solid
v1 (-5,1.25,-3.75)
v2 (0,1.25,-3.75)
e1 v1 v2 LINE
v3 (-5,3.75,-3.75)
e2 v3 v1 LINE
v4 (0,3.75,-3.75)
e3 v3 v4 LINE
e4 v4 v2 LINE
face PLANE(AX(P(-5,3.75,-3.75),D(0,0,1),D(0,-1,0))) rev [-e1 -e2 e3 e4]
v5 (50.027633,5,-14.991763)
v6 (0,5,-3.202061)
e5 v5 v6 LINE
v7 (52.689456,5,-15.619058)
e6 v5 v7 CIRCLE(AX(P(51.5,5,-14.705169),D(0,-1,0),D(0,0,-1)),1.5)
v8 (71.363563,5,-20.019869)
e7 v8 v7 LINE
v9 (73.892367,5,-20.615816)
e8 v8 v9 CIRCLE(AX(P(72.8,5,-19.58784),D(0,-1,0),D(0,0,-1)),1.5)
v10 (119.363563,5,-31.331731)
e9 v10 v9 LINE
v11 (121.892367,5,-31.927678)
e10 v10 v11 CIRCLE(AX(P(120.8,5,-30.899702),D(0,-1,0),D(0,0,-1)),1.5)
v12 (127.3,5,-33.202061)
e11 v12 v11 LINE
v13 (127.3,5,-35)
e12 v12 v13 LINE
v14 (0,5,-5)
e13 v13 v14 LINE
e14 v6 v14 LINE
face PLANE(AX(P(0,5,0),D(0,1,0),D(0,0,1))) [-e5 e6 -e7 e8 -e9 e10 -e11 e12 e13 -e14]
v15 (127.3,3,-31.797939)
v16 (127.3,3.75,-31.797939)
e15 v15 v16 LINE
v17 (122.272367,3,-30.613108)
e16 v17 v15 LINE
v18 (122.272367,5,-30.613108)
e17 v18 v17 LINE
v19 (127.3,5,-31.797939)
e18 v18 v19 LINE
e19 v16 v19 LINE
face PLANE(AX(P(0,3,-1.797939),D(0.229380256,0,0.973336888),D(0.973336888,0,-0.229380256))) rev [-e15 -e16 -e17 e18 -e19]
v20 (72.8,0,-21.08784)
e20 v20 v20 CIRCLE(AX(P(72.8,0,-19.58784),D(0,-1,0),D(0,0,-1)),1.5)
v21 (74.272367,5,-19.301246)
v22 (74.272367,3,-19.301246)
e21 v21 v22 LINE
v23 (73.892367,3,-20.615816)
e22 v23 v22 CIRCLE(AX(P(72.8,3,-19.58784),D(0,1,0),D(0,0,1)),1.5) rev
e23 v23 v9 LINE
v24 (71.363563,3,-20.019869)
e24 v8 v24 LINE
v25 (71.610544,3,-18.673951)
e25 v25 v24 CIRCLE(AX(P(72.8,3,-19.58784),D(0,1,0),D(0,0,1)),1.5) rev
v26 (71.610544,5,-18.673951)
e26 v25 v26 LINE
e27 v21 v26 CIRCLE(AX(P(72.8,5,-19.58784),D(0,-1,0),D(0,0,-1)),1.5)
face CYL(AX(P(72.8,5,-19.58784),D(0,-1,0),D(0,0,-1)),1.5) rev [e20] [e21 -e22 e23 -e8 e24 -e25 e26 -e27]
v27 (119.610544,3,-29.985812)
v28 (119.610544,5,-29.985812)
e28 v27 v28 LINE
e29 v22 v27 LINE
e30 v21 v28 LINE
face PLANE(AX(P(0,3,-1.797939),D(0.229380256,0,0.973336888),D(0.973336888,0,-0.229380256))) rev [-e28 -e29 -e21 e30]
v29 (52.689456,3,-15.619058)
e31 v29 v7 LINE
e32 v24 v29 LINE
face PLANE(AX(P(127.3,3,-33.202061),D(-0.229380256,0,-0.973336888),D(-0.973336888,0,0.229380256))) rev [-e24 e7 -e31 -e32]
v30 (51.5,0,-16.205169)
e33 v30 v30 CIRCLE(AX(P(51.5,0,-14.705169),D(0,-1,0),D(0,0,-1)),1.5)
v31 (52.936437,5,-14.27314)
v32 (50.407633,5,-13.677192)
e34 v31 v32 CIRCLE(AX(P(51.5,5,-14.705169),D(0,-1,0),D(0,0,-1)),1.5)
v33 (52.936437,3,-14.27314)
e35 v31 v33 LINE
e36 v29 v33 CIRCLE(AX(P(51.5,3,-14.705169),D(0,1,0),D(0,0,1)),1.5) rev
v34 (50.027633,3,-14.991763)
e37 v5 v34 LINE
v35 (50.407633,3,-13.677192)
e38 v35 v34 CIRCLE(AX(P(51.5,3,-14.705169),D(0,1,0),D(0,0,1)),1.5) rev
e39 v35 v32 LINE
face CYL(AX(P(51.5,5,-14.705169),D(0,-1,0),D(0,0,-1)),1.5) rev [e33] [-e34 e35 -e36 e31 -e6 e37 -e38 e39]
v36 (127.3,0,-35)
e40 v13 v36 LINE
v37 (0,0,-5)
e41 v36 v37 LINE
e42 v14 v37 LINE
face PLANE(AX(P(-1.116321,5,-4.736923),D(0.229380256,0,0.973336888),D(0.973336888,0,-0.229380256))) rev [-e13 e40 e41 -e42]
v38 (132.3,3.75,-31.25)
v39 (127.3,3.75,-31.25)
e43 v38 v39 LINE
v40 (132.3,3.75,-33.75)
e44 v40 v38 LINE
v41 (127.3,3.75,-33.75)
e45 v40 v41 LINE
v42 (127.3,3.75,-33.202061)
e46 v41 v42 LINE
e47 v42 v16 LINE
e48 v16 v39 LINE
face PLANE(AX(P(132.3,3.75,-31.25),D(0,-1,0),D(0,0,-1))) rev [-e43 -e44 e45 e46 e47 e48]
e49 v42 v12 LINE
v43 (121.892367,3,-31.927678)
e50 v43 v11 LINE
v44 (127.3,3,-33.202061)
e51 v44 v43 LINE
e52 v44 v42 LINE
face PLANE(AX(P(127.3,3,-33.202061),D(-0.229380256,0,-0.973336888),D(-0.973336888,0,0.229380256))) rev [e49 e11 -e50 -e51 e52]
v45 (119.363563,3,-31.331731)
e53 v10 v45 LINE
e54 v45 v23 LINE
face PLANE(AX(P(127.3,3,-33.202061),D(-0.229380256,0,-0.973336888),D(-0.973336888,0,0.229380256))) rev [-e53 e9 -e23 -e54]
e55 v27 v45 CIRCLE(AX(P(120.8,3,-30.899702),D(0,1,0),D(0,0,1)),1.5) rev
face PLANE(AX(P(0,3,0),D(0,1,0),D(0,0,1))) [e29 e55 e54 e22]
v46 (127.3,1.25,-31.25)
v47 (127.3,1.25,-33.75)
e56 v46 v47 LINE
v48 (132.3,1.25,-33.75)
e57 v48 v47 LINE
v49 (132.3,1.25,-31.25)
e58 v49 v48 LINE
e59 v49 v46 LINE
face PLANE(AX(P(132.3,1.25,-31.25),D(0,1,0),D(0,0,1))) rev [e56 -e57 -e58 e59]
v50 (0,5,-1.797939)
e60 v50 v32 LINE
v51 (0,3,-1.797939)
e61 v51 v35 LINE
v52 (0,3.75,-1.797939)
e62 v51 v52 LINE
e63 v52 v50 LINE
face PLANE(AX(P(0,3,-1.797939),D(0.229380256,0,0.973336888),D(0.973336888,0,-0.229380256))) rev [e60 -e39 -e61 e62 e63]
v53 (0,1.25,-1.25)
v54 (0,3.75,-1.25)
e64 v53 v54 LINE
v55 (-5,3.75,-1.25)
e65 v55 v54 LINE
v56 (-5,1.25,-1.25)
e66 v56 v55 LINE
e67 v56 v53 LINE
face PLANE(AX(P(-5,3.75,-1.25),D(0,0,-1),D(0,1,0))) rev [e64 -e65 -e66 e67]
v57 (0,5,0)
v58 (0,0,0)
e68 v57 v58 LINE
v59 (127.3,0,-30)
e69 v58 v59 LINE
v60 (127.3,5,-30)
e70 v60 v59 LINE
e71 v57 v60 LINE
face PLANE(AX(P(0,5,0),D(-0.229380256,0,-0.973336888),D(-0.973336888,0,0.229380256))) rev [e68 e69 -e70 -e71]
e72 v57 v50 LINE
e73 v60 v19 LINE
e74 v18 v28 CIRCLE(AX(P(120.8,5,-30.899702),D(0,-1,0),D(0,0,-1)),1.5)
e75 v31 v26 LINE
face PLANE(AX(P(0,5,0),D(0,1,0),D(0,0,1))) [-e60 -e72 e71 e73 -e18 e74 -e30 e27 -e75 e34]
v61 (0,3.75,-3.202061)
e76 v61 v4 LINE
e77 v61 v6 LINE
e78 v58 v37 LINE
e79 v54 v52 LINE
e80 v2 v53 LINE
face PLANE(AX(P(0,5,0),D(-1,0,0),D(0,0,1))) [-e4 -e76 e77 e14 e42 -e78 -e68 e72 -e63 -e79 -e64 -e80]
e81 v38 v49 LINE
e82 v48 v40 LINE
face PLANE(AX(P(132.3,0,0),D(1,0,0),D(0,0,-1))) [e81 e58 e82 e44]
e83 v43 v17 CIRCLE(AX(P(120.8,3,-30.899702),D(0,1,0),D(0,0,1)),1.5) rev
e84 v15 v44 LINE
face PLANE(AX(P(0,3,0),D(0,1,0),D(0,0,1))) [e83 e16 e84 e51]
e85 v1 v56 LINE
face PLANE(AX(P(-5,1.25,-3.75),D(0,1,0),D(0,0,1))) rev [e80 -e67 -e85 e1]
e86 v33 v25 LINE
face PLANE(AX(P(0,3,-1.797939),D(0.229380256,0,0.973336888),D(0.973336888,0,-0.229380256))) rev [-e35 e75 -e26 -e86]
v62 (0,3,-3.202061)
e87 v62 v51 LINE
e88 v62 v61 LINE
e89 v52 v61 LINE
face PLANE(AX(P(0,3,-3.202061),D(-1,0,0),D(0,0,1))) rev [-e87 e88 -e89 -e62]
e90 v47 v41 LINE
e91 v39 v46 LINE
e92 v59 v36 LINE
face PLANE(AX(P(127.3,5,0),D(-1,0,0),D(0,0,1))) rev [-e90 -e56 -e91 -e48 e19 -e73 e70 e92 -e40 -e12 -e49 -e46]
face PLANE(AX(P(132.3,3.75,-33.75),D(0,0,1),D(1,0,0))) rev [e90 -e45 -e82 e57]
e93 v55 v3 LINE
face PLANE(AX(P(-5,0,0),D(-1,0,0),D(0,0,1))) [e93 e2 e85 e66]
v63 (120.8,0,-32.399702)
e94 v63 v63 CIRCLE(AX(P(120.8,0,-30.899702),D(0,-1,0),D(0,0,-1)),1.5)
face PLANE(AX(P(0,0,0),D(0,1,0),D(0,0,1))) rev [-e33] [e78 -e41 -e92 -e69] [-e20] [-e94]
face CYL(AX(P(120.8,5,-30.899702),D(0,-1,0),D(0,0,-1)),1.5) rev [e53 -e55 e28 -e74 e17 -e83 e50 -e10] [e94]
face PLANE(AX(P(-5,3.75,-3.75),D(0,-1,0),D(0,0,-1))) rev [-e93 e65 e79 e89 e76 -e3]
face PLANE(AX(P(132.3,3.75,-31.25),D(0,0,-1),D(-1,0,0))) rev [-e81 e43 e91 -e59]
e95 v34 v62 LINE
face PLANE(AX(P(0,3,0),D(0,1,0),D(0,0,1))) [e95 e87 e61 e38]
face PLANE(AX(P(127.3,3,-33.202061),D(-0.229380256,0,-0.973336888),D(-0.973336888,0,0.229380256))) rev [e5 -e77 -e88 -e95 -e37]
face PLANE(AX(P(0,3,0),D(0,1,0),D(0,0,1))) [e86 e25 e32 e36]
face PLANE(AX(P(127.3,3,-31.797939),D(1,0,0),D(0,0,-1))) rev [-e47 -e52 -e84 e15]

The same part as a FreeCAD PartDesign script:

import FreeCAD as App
import Part
import Sketcher

V = App.Vector


def add_polygon(sketch, points):
    """Adds a closed chain of lines whose ends are joined by coincident constraints."""
    first, n = sketch.GeometryCount, len(points)
    for a, b in zip(points, points[1:] + points[:1]):
        sketch.addGeometry(Part.LineSegment(App.Vector(*a, 0), App.Vector(*b, 0)), False)
    for i in range(n):
        sketch.addConstraint(Sketcher.Constraint("Coincident", first + i, 2, first + (i + 1) % n, 1))

doc = App.newDocument("Part")
body = doc.addObject("PartDesign::Body", "Body")

# Sketch on XZ plane
sketch1 = body.newObject("Sketcher::SketchObject", "Sketch")
sketch1.AttachmentSupport = (doc.getObject("XZ_Plane"), [""])
sketch1.MapMode = "FlatFace"
add_polygon(sketch1, [(0, -5), (0, 0), (127.3, -30), (127.3, -35)])  # lines 0-3
sketch1.addConstraint([
    Sketcher.Constraint("Vertical", 0),
    Sketcher.Constraint("Vertical", 2),
    Sketcher.Constraint("Coincident", 0, 2, -1, 1),
    Sketcher.Constraint("Parallel", 1, 3),
    Sketcher.Constraint("DistanceY", 0, 1, 0, 2, 5.0),
    Sketcher.Constraint("DistanceY", 1, 2, -1, 1, 30.0),
    Sketcher.Constraint("DistanceX", -1, 1, 1, 2, 127.3),
])
pad1 = body.newObject("PartDesign::Pad", "Pad")
pad1.Profile = sketch1
pad1.Length = 5
pad1.Reversed = True

# Sketch on YZ plane
sketch2 = body.newObject("Sketcher::SketchObject", "Sketch001")
sketch2.AttachmentSupport = (doc.getObject("YZ_Plane"), [""])
sketch2.MapMode = "FlatFace"
sketch2.AttachmentOffset = App.Placement(V(0, 0, 127.3), App.Rotation())
add_polygon(sketch2, [(3.75, -31.25), (1.25, -31.25), (1.25, -33.75), (3.75, -33.75)])  # lines 0-3
sketch2.addConstraint([
    Sketcher.Constraint("Horizontal", 0),
    Sketcher.Constraint("Vertical", 1),
    Sketcher.Constraint("Horizontal", 2),
    Sketcher.Constraint("Vertical", 3),
    Sketcher.Constraint("Equal", 2, 1),
    Sketcher.Constraint("DistanceX", 0, 2, 0, 1, 2.5),
    Sketcher.Constraint("DistanceX", -1, 1, 0, 2, 1.25),
    Sketcher.Constraint("DistanceY", 0, 2, -1, 1, 31.25),
])
pad2 = body.newObject("PartDesign::Pad", "Pad001")
pad2.Profile = sketch2
pad2.Length = 5

# Sketch on YZ plane
sketch3 = body.newObject("Sketcher::SketchObject", "Sketch002")
sketch3.AttachmentSupport = (doc.getObject("YZ_Plane"), [""])
sketch3.MapMode = "FlatFace"
add_polygon(sketch3, [(3.75, -3.75), (1.25, -3.75), (1.25, -1.25), (3.75, -1.25)])  # lines 0-3
sketch3.addConstraint([
    Sketcher.Constraint("Horizontal", 0),
    Sketcher.Constraint("Vertical", 1),
    Sketcher.Constraint("Horizontal", 2),
    Sketcher.Constraint("Vertical", 3),
    Sketcher.Constraint("Equal", 2, 1),
    Sketcher.Constraint("DistanceX", 0, 2, 0, 1, 2.5),
    Sketcher.Constraint("DistanceX", -1, 1, 0, 2, 1.25),
    Sketcher.Constraint("DistanceY", 0, 2, -1, 1, 3.75),
])
pad3 = body.newObject("PartDesign::Pad", "Pad002")
pad3.Profile = sketch3
pad3.Length = 5
pad3.Reversed = True

# Sketch on XZ plane
sketch4 = body.newObject("Sketcher::SketchObject", "Sketch003")
sketch4.AttachmentSupport = (doc.getObject("XZ_Plane"), [""])
sketch4.MapMode = "FlatFace"
sketch4.addGeometry([
    Part.Circle(V(51.5, -14.705169, 0), V(0, 0, 1), 1.5),
    Part.Circle(V(72.8, -19.58784, 0), V(0, 0, 1), 1.5),
    Part.Circle(V(120.8, -30.899702, 0), V(0, 0, 1), 1.5),
], False)
sketch4.addConstraint([
    Sketcher.Constraint("Equal", 0, 1),
    Sketcher.Constraint("Equal", 1, 2),
    Sketcher.Constraint("Diameter", 0, 3.0),
    Sketcher.Constraint("DistanceX", 1, 3, 2, 3, 48.0),
    Sketcher.Constraint("DistanceX", -1, 1, 0, 3, 51.5),
    Sketcher.Constraint("DistanceX", -1, 1, 1, 3, 72.8),
    Sketcher.Constraint("DistanceY", 2, 3, -1, 1, 30.899702),
    Sketcher.Constraint("DistanceY", 0, 3, -1, 1, 14.705169),
    Sketcher.Constraint("DistanceY", 1, 3, -1, 1, 19.58784),
])
pocket1 = body.newObject("PartDesign::Pocket", "Pocket")
pocket1.Profile = sketch4
pocket1.Length = 5

# Sketch on XZ plane
sketch5 = body.newObject("Sketcher::SketchObject", "Sketch004")
sketch5.AttachmentSupport = (doc.getObject("XZ_Plane"), [""])
sketch5.MapMode = "FlatFace"
sketch5.AttachmentOffset = App.Placement(V(0, 0, -5), App.Rotation())
add_polygon(sketch5, [(0, -3.202061), (0, -1.797939), (127.3, -31.797939), (127.3, -33.202061)])  # lines 0-3
sketch5.addConstraint([
    Sketcher.Constraint("Vertical", 0),
    Sketcher.Constraint("Vertical", 2),
    Sketcher.Constraint("PointOnObject", 0, 2, -2),
    Sketcher.Constraint("Parallel", 1, 3),
    Sketcher.Constraint("DistanceY", 1, 2, 0, 2, 30.0),
    Sketcher.Constraint("DistanceX", -1, 1, 1, 2, 127.3),
    Sketcher.Constraint("DistanceY", 0, 1, 0, 2, 1.404123),
    Sketcher.Constraint("DistanceY", 0, 2, -1, 1, 1.797939),
])
pocket2 = body.newObject("PartDesign::Pocket", "Pocket001")
pocket2.Profile = sketch5
pocket2.Length = 2
pocket2.Reversed = True

doc.recompute()
